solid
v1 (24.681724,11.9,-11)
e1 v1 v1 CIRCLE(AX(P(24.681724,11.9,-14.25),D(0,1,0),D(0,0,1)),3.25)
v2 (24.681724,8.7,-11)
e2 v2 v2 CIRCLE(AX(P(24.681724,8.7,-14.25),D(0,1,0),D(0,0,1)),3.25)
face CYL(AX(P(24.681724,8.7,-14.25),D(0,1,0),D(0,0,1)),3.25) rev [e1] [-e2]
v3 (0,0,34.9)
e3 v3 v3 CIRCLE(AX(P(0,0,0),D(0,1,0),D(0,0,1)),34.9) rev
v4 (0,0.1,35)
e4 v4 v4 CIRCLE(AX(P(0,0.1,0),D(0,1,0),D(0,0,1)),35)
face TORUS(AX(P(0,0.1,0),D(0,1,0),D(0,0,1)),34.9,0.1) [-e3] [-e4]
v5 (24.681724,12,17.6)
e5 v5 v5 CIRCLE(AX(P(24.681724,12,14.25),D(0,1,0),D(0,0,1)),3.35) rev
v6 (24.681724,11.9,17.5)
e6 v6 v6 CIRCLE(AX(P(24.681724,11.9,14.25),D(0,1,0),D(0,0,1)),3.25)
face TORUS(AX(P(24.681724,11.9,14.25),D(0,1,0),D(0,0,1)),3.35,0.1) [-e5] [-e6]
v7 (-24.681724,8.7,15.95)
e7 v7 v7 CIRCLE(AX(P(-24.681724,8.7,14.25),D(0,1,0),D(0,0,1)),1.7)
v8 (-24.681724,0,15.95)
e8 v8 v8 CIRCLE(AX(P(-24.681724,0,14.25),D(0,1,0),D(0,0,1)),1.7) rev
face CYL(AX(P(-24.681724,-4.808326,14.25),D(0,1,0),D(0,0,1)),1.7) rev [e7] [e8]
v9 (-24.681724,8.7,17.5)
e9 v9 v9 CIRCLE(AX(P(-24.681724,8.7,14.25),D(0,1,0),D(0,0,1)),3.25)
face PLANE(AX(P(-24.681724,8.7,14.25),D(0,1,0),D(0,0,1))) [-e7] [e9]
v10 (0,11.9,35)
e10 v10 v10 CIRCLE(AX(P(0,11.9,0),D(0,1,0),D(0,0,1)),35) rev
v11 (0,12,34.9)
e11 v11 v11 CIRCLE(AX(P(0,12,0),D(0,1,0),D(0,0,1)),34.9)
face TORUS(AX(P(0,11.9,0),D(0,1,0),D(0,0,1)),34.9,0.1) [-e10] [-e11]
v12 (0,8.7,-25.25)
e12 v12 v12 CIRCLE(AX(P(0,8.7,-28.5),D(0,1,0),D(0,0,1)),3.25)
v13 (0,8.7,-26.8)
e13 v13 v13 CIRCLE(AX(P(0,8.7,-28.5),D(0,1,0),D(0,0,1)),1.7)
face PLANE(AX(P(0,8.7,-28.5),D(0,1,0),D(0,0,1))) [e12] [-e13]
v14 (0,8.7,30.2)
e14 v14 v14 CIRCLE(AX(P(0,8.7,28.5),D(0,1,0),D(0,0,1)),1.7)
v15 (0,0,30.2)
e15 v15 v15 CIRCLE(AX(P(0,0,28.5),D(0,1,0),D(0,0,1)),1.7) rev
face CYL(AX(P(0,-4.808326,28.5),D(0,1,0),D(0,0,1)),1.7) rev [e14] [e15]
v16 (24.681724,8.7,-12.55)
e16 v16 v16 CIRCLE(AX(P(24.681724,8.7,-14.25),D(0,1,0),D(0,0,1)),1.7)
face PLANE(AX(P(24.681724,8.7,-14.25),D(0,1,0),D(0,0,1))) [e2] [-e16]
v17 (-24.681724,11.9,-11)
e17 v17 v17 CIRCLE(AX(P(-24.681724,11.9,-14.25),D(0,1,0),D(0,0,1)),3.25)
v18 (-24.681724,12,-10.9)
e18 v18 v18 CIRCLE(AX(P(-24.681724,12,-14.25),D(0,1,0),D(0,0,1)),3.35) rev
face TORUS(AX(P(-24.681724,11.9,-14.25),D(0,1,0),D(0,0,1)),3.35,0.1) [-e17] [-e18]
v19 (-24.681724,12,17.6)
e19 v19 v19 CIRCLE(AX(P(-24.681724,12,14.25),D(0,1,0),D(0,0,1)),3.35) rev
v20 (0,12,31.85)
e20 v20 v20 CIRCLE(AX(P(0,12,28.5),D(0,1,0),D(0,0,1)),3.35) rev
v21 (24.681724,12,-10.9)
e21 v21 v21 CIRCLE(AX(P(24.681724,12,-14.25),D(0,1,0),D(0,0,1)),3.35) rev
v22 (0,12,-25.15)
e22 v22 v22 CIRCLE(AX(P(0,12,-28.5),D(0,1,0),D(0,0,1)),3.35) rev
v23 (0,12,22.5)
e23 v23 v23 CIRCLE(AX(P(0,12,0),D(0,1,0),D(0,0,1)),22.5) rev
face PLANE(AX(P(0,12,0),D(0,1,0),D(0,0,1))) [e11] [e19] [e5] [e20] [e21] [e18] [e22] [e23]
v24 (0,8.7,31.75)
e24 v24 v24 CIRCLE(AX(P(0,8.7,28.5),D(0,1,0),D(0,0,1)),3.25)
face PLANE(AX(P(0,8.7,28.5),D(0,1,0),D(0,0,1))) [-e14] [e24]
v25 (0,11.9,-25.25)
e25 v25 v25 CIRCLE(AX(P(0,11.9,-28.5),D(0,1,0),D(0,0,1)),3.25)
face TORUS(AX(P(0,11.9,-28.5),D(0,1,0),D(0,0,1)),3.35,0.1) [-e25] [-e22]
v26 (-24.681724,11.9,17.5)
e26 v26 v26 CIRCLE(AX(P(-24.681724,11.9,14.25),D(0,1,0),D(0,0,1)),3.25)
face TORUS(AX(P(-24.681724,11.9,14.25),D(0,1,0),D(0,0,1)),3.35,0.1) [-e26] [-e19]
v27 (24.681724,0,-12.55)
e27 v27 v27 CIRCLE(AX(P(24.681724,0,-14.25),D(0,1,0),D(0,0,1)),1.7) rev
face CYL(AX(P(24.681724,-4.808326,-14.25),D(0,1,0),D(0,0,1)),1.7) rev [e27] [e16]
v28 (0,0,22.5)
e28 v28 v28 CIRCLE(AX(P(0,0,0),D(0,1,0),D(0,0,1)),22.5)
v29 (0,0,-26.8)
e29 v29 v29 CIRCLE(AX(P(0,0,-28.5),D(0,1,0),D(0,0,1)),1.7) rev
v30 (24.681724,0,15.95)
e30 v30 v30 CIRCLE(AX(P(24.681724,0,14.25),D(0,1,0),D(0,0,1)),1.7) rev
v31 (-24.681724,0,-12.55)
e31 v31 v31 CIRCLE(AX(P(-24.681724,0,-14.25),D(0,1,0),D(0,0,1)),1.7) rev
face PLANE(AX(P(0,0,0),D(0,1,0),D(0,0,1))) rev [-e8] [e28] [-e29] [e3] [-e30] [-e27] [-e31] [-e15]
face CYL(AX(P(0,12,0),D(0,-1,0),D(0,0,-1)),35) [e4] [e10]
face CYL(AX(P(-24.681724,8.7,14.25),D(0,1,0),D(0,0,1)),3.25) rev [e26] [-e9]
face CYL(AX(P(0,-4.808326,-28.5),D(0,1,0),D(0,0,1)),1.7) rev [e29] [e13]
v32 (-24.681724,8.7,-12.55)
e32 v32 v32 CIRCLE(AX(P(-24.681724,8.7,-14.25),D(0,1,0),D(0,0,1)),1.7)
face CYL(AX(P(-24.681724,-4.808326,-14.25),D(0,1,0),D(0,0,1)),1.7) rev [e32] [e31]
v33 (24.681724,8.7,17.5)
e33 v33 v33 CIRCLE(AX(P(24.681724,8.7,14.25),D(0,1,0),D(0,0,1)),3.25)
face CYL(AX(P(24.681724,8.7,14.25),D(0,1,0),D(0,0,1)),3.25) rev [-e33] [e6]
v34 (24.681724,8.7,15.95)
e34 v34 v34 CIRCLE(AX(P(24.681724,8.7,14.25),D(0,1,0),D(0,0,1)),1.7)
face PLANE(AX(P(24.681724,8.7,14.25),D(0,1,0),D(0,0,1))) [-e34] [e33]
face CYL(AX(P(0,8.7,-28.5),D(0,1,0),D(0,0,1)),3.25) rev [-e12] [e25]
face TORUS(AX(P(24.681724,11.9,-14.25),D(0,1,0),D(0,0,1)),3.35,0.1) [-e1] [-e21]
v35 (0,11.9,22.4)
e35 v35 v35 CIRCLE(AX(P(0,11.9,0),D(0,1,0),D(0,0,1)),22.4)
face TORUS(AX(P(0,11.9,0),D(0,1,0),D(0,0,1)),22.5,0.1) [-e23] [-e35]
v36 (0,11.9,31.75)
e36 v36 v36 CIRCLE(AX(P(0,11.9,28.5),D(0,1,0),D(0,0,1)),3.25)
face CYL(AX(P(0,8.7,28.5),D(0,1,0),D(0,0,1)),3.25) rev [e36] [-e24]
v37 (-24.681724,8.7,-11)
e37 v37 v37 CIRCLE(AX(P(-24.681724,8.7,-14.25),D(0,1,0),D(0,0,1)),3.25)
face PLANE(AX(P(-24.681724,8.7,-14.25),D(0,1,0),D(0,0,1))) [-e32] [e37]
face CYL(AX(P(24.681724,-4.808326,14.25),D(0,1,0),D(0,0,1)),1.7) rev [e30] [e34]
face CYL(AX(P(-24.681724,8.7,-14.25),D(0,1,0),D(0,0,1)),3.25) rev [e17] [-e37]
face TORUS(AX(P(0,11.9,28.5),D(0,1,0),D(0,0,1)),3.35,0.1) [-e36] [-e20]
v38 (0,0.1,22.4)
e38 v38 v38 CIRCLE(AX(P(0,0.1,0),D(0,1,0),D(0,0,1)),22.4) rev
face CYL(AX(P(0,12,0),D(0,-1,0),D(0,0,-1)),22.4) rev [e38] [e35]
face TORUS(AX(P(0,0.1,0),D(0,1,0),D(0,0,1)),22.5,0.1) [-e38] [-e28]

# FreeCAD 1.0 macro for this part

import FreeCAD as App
import Part
import Sketcher

V = App.Vector
Q = App.Units.Quantity


def edges_at(feature, points):
    """Names of the edges that pass closest to the given points."""
    edges = feature.Shape.Edges
    near = lambda p: min(range(len(edges)), key=lambda i: edges[i].distToShape(Part.Vertex(*p))[0])
    return sorted({f"Edge{near(p) + 1}" for p in points})

doc = App.newDocument("Part")
body = doc.addObject("PartDesign::Body", "Body")

# Sketch on XZ plane
sketch1 = doc.addObject("Sketcher::SketchObject", "Sketch")
body.addObject(sketch1)
sketch1.AttachmentSupport = (doc.XZ_Plane, [""])
sketch1.MapMode = "FlatFace"
sketch1.addGeometry([
    Part.Circle(V(0, 0, 0), V(0, 0, 1), 35),
    Part.Circle(V(0, 0, 0), V(0, 0, 1), 22.4),
], False)
sketch1.addConstraint([
    Sketcher.Constraint("Coincident", 0, 3, -1, 1),
    Sketcher.Constraint("Coincident", 1, 3, -1, 1),
    Sketcher.Constraint("Diameter", 0, Q("70 mm")),
    Sketcher.Constraint("Diameter", 1, Q("44.8 mm")),
])
pad1 = doc.addObject("PartDesign::Pad", "Pad")
body.addObject(pad1)
pad1.Profile = sketch1
pad1.Length = 12
pad1.Reversed = True

# Sketch on XZ plane
sketch2 = doc.addObject("Sketcher::SketchObject", "Sketch001")
body.addObject(sketch2)
sketch2.AttachmentSupport = (doc.XZ_Plane, [""])
sketch2.MapMode = "FlatFace"
sketch2.AttachmentOffset = App.Placement(V(0, 0, -12), App.Rotation())
sketch2.addGeometry([
    Part.Circle(V(0, -28.5, 0), V(0, 0, 1), 3.25),  # 0
    Part.Circle(V(24.681724, -14.25, 0), V(0, 0, 1), 3.25),  # 1
    Part.Circle(V(24.681724, 14.25, 0), V(0, 0, 1), 3.25),  # 2
    Part.Circle(V(0, 28.5, 0), V(0, 0, 1), 3.25),  # 3
    Part.Circle(V(-24.681724, 14.25, 0), V(0, 0, 1), 3.25),  # 4
    Part.Circle(V(-24.681724, -14.25, 0), V(0, 0, 1), 3.25),  # 5
], False)
sketch2.addConstraint([
    Sketcher.Constraint("Equal", 0, 1),
    Sketcher.Constraint("Equal", 1, 2),
    Sketcher.Constraint("Equal", 2, 3),
    Sketcher.Constraint("Equal", 3, 4),
    Sketcher.Constraint("Equal", 4, 5),
    Sketcher.Constraint("Symmetric", 0, 3, 3, 3, -1, 1),
    Sketcher.Constraint("Symmetric", 1, 3, 4, 3, -1, 1),
    Sketcher.Constraint("Symmetric", 2, 3, 5, 3, -1, 1),
    Sketcher.Constraint("Symmetric", 2, 3, 4, 3, -2),
    Sketcher.Constraint("PointOnObject", 0, 3, -2),
    Sketcher.Constraint("Diameter", 0, Q("6.5 mm")),
    Sketcher.Constraint("DistanceY", 0, 3, 3, 3, Q("57 mm")),
    Sketcher.Constraint("DistanceY", 1, 3, 2, 3, Q("28.5 mm")),
    Sketcher.Constraint("DistanceX", 4, 3, 2, 3, Q("49.363448 mm")),
])
pocket1 = doc.addObject("PartDesign::Pocket", "Pocket")
body.addObject(pocket1)
pocket1.Profile = sketch2
pocket1.Length = 3.3
pocket1.Reversed = True

# Sketch on XZ plane
sketch3 = doc.addObject("Sketcher::SketchObject", "Sketch002")
body.addObject(sketch3)
sketch3.AttachmentSupport = (doc.XZ_Plane, [""])
sketch3.MapMode = "FlatFace"
sketch3.AttachmentOffset = App.Placement(V(0, 0, -12), App.Rotation())
sketch3.addGeometry([
    Part.Circle(V(0, -28.5, 0), V(0, 0, 1), 1.7),  # 0
    Part.Circle(V(24.681724, -14.25, 0), V(0, 0, 1), 1.7),  # 1
    Part.Circle(V(24.681724, 14.25, 0), V(0, 0, 1), 1.7),  # 2
    Part.Circle(V(0, 28.5, 0), V(0, 0, 1), 1.7),  # 3
    Part.Circle(V(-24.681724, 14.25, 0), V(0, 0, 1), 1.7),  # 4
    Part.Circle(V(-24.681724, -14.25, 0), V(0, 0, 1), 1.7),  # 5
], False)
sketch3.addConstraint([
    Sketcher.Constraint("Equal", 0, 1),
    Sketcher.Constraint("Equal", 1, 2),
    Sketcher.Constraint("Equal", 2, 3),
    Sketcher.Constraint("Equal", 3, 4),
    Sketcher.Constraint("Equal", 4, 5),
    Sketcher.Constraint("Symmetric", 0, 3, 3, 3, -1, 1),
    Sketcher.Constraint("Symmetric", 1, 3, 4, 3, -1, 1),
    Sketcher.Constraint("Symmetric", 2, 3, 5, 3, -1, 1),
    Sketcher.Constraint("Symmetric", 2, 3, 4, 3, -2),
    Sketcher.Constraint("PointOnObject", 0, 3, -2),
    Sketcher.Constraint("Diameter", 0, Q("3.4 mm")),
    Sketcher.Constraint("DistanceY", 0, 3, 3, 3, Q("57 mm")),
    Sketcher.Constraint("DistanceY", 1, 3, 2, 3, Q("28.5 mm")),
    Sketcher.Constraint("DistanceX", 4, 3, 2, 3, Q("49.363448 mm")),
])
pocket2 = doc.addObject("PartDesign::Pocket", "Pocket001")
body.addObject(pocket2)
pocket2.Profile = sketch3
pocket2.Length = 12
pocket2.Reversed = True
doc.recompute()

fillet = doc.addObject("PartDesign::Fillet", "Fillet")
body.addObject(fillet)
fillet.Base = (pocket2, edges_at(pocket2, [
    (0, 0, -35),
    (0, 12, -35),
    (0, 0, -22.4),
    (0, 12, -22.4),
]))
fillet.Radius = 0.1
doc.recompute()

fillet2 = doc.addObject("PartDesign::Fillet", "Fillet001")
body.addObject(fillet2)
fillet2.Base = (fillet, edges_at(fillet, [
    (0, 12, 25.25),
    (-24.682, 12, 11),
    (-24.682, 12, -17.5),
    (0, 12, -31.75),
    (24.682, 12, -17.5),
    (24.682, 12, 11),
]))
fillet2.Radius = 0.1

doc.recompute()
